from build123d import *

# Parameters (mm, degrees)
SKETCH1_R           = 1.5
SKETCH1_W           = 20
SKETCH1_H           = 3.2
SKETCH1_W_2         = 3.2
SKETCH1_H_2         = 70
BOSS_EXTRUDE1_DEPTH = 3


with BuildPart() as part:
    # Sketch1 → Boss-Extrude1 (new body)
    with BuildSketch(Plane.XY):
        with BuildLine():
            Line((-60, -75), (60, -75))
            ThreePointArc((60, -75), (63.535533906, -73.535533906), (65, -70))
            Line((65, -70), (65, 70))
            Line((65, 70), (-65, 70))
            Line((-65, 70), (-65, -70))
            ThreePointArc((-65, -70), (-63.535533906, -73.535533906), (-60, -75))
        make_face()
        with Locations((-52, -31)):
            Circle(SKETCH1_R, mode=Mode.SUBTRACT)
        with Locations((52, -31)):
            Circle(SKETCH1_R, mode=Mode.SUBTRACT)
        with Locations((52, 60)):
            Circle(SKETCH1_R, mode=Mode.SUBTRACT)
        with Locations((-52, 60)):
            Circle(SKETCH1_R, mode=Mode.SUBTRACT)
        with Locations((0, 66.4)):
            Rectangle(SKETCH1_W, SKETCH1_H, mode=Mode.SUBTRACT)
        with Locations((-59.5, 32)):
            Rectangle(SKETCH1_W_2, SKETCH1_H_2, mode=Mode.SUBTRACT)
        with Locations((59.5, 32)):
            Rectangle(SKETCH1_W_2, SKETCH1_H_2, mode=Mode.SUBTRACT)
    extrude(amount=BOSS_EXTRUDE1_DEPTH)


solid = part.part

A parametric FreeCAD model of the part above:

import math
import FreeCAD as App
import Part
import Sketcher

V = App.Vector
Q = App.Units.Quantity


def add_polygon(sketch, points):
    """Adds a closed chain of lines whose ends are joined by coincident constraints."""
    first, n = sketch.GeometryCount, len(points)
    for a, b in zip(points, points[1:] + points[:1]):
        sketch.addGeometry(Part.LineSegment(App.Vector(*a, 0), App.Vector(*b, 0)), False)
    for i in range(n):
        sketch.addConstraint(Sketcher.Constraint("Coincident", first + i, 2, first + (i + 1) % n, 1))

doc = App.newDocument("Part")
params = doc.addObject("Spreadsheet::Sheet", "Params")
for row, (alias, value) in enumerate([
    ("sketch1_diameter", "3 mm"),
    ("sketch1_radius", "5 mm"),
    ("sketch1_width", "120 mm"),
    ("sketch1_width2", "20 mm"),
    ("sketch1_height", "140 mm"),
    ("pad1_length", "3 mm"),
], start=1):
    params.set(f"A{row}", alias)
    params.set(f"B{row}", "=" + value)
    params.setAlias(f"B{row}", alias)

body = doc.addObject("PartDesign::Body", "Body")

# Sketch on XY plane
sketch1 = body.newObject("Sketcher::SketchObject", "Sketch")
sketch1.AttachmentSupport = (doc.getObject("XY_Plane"), [""])
sketch1.MapMode = "FlatFace"
sketch1.addGeometry(Part.LineSegment(V(-60, -75, 0), V(60, -75, 0)), False)  # 0
sketch1.addGeometry(Part.ArcOfCircle(Part.Circle(V(60, -70, 0), V(0, 0, 1), 5), math.radians(-90), math.radians(0)), False)  # 1
sketch1.addGeometry(Part.LineSegment(V(65, -70, 0), V(65, 70, 0)), False)  # 2
sketch1.addGeometry(Part.LineSegment(V(65, 70, 0), V(-65, 70, 0)), False)  # 3
sketch1.addGeometry(Part.LineSegment(V(-65, 70, 0), V(-65, -70, 0)), False)  # 4
sketch1.addGeometry(Part.ArcOfCircle(Part.Circle(V(-60, -70, 0), V(0, 0, 1), 5), math.radians(180), math.radians(270)), False)  # 5
sketch1.addGeometry(Part.Circle(V(-52, -31, 0), V(0, 0, 1), 1.5), False)  # 6
sketch1.addGeometry(Part.Circle(V(52, -31, 0), V(0, 0, 1), 1.5), False)  # 7
add_polygon(sketch1, [(-57.9, -3), (-61.1, -3), (-61.1, 67), (-57.9, 67)])  # lines 8-11
sketch1.addGeometry(Part.Circle(V(-52, 60, 0), V(0, 0, 1), 1.5), False)  # 12
add_polygon(sketch1, [(61.1, -3), (57.9, -3), (57.9, 67), (61.1, 67)])  # lines 13-16
add_polygon(sketch1, [(10, 64.8), (-10, 64.8), (-10, 68), (10, 68)])  # lines 17-20
sketch1.addGeometry(Part.Circle(V(52, 60, 0), V(0, 0, 1), 1.5), False)  # 21
sketch1.addConstraint(Sketcher.Constraint("Tangent", 0, 2, 1, 1))
sketch1.addConstraint(Sketcher.Constraint("Tangent", 1, 2, 2, 1))
sketch1.addConstraint(Sketcher.Constraint("Coincident", 2, 2, 3, 1))
sketch1.addConstraint(Sketcher.Constraint("Coincident", 3, 2, 4, 1))
sketch1.addConstraint(Sketcher.Constraint("Tangent", 4, 2, 5, 1))
sketch1.addConstraint(Sketcher.Constraint("Tangent", 5, 2, 0, 1))
sketch1.addConstraint(Sketcher.Constraint("Horizontal", 0))
sketch1.addConstraint(Sketcher.Constraint("Vertical", 2))
sketch1.addConstraint(Sketcher.Constraint("Horizontal", 3))
sketch1.addConstraint(Sketcher.Constraint("Vertical", 4))
sketch1.addConstraint(Sketcher.Constraint("Horizontal", 8))
sketch1.addConstraint(Sketcher.Constraint("Vertical", 9))
sketch1.addConstraint(Sketcher.Constraint("Horizontal", 10))
sketch1.addConstraint(Sketcher.Constraint("Vertical", 11))
sketch1.addConstraint(Sketcher.Constraint("Horizontal", 13))
sketch1.addConstraint(Sketcher.Constraint("Vertical", 14))
sketch1.addConstraint(Sketcher.Constraint("Horizontal", 15))
sketch1.addConstraint(Sketcher.Constraint("Vertical", 16))
sketch1.addConstraint(Sketcher.Constraint("Horizontal", 17))
sketch1.addConstraint(Sketcher.Constraint("Vertical", 18))
sketch1.addConstraint(Sketcher.Constraint("Horizontal", 19))
sketch1.addConstraint(Sketcher.Constraint("Vertical", 20))
sketch1.addConstraint(Sketcher.Constraint("Equal", 1, 5))
sketch1.addConstraint(Sketcher.Constraint("Equal", 6, 7))
sketch1.addConstraint(Sketcher.Constraint("Equal", 7, 12))
sketch1.addConstraint(Sketcher.Constraint("Equal", 12, 21))
sketch1.addConstraint(Sketcher.Constraint("Symmetric", 1, 2, 3, 2, -1, 1))
sketch1.addConstraint(Sketcher.Constraint("Symmetric", 6, 3, 7, 3, -2))
sketch1.addConstraint(Sketcher.Constraint("Symmetric", 12, 3, 21, 3, -2))
sketch1.addConstraint(Sketcher.Constraint("Symmetric", 11, 2, 13, 2, -2))
sketch1.addConstraint(Sketcher.Constraint("Symmetric", 9, 2, 15, 2, -2))
sketch1.addConstraint(Sketcher.Constraint("Vertical", 6, 3, 12, 3))
sketch1.addConstraint(Sketcher.Constraint("Equal", 15, 18))
sketch1.addConstraint(Sketcher.Constraint("Diameter", 6, Q("3 mm")))
sketch1.addConstraint(Sketcher.Constraint("Radius", 1, Q("5 mm")))
sketch1.addConstraint(Sketcher.Constraint("DistanceX", 0, 1, 0, 2, Q("120 mm")))
sketch1.addConstraint(Sketcher.Constraint("DistanceX", 17, 2, 17, 1, Q("20 mm")))
sketch1.addConstraint(Sketcher.Constraint("DistanceY", 2, 1, 2, 2, Q("140 mm")))
sketch1.addConstraint(Sketcher.Constraint("DistanceY", 9, 1, 9, 2, Q("70 mm")))
sketch1.addConstraint(Sketcher.Constraint("DistanceX", 8, 2, 8, 1, Q("3.2 mm")))
sketch1.addConstraint(Sketcher.Constraint("DistanceX", 6, 3, -1, 1, Q("52 mm")))
sketch1.addConstraint(Sketcher.Constraint("DistanceY", 6, 3, -1, 1, Q("31 mm")))
sketch1.addConstraint(Sketcher.Constraint("DistanceY", -1, 1, 12, 3, Q("60 mm")))
sketch1.addConstraint(Sketcher.Constraint("DistanceY", 8, 2, -1, 1, Q("3 mm")))
sketch1.addConstraint(Sketcher.Constraint("DistanceX", 17, 2, -1, 1, Q("10 mm")))
sketch1.addConstraint(Sketcher.Constraint("DistanceY", -1, 1, 18, 2, Q("68 mm")))
sketch1.addConstraint(Sketcher.Constraint("DistanceX", 8, 2, -1, 1, Q("61.1 mm")))
sketch1.setExpression("Constraints[45]", "Params.sketch1_diameter")
sketch1.setExpression("Constraints[46]", "Params.sketch1_radius")
sketch1.setExpression("Constraints[47]", "Params.sketch1_width")
sketch1.setExpression("Constraints[48]", "Params.sketch1_width2")
sketch1.setExpression("Constraints[49]", "Params.sketch1_height")
pad1 = body.newObject("PartDesign::Pad", "Pad")
pad1.Profile = sketch1
pad1.setExpression("Length", "Params.pad1_length")

doc.recompute()
